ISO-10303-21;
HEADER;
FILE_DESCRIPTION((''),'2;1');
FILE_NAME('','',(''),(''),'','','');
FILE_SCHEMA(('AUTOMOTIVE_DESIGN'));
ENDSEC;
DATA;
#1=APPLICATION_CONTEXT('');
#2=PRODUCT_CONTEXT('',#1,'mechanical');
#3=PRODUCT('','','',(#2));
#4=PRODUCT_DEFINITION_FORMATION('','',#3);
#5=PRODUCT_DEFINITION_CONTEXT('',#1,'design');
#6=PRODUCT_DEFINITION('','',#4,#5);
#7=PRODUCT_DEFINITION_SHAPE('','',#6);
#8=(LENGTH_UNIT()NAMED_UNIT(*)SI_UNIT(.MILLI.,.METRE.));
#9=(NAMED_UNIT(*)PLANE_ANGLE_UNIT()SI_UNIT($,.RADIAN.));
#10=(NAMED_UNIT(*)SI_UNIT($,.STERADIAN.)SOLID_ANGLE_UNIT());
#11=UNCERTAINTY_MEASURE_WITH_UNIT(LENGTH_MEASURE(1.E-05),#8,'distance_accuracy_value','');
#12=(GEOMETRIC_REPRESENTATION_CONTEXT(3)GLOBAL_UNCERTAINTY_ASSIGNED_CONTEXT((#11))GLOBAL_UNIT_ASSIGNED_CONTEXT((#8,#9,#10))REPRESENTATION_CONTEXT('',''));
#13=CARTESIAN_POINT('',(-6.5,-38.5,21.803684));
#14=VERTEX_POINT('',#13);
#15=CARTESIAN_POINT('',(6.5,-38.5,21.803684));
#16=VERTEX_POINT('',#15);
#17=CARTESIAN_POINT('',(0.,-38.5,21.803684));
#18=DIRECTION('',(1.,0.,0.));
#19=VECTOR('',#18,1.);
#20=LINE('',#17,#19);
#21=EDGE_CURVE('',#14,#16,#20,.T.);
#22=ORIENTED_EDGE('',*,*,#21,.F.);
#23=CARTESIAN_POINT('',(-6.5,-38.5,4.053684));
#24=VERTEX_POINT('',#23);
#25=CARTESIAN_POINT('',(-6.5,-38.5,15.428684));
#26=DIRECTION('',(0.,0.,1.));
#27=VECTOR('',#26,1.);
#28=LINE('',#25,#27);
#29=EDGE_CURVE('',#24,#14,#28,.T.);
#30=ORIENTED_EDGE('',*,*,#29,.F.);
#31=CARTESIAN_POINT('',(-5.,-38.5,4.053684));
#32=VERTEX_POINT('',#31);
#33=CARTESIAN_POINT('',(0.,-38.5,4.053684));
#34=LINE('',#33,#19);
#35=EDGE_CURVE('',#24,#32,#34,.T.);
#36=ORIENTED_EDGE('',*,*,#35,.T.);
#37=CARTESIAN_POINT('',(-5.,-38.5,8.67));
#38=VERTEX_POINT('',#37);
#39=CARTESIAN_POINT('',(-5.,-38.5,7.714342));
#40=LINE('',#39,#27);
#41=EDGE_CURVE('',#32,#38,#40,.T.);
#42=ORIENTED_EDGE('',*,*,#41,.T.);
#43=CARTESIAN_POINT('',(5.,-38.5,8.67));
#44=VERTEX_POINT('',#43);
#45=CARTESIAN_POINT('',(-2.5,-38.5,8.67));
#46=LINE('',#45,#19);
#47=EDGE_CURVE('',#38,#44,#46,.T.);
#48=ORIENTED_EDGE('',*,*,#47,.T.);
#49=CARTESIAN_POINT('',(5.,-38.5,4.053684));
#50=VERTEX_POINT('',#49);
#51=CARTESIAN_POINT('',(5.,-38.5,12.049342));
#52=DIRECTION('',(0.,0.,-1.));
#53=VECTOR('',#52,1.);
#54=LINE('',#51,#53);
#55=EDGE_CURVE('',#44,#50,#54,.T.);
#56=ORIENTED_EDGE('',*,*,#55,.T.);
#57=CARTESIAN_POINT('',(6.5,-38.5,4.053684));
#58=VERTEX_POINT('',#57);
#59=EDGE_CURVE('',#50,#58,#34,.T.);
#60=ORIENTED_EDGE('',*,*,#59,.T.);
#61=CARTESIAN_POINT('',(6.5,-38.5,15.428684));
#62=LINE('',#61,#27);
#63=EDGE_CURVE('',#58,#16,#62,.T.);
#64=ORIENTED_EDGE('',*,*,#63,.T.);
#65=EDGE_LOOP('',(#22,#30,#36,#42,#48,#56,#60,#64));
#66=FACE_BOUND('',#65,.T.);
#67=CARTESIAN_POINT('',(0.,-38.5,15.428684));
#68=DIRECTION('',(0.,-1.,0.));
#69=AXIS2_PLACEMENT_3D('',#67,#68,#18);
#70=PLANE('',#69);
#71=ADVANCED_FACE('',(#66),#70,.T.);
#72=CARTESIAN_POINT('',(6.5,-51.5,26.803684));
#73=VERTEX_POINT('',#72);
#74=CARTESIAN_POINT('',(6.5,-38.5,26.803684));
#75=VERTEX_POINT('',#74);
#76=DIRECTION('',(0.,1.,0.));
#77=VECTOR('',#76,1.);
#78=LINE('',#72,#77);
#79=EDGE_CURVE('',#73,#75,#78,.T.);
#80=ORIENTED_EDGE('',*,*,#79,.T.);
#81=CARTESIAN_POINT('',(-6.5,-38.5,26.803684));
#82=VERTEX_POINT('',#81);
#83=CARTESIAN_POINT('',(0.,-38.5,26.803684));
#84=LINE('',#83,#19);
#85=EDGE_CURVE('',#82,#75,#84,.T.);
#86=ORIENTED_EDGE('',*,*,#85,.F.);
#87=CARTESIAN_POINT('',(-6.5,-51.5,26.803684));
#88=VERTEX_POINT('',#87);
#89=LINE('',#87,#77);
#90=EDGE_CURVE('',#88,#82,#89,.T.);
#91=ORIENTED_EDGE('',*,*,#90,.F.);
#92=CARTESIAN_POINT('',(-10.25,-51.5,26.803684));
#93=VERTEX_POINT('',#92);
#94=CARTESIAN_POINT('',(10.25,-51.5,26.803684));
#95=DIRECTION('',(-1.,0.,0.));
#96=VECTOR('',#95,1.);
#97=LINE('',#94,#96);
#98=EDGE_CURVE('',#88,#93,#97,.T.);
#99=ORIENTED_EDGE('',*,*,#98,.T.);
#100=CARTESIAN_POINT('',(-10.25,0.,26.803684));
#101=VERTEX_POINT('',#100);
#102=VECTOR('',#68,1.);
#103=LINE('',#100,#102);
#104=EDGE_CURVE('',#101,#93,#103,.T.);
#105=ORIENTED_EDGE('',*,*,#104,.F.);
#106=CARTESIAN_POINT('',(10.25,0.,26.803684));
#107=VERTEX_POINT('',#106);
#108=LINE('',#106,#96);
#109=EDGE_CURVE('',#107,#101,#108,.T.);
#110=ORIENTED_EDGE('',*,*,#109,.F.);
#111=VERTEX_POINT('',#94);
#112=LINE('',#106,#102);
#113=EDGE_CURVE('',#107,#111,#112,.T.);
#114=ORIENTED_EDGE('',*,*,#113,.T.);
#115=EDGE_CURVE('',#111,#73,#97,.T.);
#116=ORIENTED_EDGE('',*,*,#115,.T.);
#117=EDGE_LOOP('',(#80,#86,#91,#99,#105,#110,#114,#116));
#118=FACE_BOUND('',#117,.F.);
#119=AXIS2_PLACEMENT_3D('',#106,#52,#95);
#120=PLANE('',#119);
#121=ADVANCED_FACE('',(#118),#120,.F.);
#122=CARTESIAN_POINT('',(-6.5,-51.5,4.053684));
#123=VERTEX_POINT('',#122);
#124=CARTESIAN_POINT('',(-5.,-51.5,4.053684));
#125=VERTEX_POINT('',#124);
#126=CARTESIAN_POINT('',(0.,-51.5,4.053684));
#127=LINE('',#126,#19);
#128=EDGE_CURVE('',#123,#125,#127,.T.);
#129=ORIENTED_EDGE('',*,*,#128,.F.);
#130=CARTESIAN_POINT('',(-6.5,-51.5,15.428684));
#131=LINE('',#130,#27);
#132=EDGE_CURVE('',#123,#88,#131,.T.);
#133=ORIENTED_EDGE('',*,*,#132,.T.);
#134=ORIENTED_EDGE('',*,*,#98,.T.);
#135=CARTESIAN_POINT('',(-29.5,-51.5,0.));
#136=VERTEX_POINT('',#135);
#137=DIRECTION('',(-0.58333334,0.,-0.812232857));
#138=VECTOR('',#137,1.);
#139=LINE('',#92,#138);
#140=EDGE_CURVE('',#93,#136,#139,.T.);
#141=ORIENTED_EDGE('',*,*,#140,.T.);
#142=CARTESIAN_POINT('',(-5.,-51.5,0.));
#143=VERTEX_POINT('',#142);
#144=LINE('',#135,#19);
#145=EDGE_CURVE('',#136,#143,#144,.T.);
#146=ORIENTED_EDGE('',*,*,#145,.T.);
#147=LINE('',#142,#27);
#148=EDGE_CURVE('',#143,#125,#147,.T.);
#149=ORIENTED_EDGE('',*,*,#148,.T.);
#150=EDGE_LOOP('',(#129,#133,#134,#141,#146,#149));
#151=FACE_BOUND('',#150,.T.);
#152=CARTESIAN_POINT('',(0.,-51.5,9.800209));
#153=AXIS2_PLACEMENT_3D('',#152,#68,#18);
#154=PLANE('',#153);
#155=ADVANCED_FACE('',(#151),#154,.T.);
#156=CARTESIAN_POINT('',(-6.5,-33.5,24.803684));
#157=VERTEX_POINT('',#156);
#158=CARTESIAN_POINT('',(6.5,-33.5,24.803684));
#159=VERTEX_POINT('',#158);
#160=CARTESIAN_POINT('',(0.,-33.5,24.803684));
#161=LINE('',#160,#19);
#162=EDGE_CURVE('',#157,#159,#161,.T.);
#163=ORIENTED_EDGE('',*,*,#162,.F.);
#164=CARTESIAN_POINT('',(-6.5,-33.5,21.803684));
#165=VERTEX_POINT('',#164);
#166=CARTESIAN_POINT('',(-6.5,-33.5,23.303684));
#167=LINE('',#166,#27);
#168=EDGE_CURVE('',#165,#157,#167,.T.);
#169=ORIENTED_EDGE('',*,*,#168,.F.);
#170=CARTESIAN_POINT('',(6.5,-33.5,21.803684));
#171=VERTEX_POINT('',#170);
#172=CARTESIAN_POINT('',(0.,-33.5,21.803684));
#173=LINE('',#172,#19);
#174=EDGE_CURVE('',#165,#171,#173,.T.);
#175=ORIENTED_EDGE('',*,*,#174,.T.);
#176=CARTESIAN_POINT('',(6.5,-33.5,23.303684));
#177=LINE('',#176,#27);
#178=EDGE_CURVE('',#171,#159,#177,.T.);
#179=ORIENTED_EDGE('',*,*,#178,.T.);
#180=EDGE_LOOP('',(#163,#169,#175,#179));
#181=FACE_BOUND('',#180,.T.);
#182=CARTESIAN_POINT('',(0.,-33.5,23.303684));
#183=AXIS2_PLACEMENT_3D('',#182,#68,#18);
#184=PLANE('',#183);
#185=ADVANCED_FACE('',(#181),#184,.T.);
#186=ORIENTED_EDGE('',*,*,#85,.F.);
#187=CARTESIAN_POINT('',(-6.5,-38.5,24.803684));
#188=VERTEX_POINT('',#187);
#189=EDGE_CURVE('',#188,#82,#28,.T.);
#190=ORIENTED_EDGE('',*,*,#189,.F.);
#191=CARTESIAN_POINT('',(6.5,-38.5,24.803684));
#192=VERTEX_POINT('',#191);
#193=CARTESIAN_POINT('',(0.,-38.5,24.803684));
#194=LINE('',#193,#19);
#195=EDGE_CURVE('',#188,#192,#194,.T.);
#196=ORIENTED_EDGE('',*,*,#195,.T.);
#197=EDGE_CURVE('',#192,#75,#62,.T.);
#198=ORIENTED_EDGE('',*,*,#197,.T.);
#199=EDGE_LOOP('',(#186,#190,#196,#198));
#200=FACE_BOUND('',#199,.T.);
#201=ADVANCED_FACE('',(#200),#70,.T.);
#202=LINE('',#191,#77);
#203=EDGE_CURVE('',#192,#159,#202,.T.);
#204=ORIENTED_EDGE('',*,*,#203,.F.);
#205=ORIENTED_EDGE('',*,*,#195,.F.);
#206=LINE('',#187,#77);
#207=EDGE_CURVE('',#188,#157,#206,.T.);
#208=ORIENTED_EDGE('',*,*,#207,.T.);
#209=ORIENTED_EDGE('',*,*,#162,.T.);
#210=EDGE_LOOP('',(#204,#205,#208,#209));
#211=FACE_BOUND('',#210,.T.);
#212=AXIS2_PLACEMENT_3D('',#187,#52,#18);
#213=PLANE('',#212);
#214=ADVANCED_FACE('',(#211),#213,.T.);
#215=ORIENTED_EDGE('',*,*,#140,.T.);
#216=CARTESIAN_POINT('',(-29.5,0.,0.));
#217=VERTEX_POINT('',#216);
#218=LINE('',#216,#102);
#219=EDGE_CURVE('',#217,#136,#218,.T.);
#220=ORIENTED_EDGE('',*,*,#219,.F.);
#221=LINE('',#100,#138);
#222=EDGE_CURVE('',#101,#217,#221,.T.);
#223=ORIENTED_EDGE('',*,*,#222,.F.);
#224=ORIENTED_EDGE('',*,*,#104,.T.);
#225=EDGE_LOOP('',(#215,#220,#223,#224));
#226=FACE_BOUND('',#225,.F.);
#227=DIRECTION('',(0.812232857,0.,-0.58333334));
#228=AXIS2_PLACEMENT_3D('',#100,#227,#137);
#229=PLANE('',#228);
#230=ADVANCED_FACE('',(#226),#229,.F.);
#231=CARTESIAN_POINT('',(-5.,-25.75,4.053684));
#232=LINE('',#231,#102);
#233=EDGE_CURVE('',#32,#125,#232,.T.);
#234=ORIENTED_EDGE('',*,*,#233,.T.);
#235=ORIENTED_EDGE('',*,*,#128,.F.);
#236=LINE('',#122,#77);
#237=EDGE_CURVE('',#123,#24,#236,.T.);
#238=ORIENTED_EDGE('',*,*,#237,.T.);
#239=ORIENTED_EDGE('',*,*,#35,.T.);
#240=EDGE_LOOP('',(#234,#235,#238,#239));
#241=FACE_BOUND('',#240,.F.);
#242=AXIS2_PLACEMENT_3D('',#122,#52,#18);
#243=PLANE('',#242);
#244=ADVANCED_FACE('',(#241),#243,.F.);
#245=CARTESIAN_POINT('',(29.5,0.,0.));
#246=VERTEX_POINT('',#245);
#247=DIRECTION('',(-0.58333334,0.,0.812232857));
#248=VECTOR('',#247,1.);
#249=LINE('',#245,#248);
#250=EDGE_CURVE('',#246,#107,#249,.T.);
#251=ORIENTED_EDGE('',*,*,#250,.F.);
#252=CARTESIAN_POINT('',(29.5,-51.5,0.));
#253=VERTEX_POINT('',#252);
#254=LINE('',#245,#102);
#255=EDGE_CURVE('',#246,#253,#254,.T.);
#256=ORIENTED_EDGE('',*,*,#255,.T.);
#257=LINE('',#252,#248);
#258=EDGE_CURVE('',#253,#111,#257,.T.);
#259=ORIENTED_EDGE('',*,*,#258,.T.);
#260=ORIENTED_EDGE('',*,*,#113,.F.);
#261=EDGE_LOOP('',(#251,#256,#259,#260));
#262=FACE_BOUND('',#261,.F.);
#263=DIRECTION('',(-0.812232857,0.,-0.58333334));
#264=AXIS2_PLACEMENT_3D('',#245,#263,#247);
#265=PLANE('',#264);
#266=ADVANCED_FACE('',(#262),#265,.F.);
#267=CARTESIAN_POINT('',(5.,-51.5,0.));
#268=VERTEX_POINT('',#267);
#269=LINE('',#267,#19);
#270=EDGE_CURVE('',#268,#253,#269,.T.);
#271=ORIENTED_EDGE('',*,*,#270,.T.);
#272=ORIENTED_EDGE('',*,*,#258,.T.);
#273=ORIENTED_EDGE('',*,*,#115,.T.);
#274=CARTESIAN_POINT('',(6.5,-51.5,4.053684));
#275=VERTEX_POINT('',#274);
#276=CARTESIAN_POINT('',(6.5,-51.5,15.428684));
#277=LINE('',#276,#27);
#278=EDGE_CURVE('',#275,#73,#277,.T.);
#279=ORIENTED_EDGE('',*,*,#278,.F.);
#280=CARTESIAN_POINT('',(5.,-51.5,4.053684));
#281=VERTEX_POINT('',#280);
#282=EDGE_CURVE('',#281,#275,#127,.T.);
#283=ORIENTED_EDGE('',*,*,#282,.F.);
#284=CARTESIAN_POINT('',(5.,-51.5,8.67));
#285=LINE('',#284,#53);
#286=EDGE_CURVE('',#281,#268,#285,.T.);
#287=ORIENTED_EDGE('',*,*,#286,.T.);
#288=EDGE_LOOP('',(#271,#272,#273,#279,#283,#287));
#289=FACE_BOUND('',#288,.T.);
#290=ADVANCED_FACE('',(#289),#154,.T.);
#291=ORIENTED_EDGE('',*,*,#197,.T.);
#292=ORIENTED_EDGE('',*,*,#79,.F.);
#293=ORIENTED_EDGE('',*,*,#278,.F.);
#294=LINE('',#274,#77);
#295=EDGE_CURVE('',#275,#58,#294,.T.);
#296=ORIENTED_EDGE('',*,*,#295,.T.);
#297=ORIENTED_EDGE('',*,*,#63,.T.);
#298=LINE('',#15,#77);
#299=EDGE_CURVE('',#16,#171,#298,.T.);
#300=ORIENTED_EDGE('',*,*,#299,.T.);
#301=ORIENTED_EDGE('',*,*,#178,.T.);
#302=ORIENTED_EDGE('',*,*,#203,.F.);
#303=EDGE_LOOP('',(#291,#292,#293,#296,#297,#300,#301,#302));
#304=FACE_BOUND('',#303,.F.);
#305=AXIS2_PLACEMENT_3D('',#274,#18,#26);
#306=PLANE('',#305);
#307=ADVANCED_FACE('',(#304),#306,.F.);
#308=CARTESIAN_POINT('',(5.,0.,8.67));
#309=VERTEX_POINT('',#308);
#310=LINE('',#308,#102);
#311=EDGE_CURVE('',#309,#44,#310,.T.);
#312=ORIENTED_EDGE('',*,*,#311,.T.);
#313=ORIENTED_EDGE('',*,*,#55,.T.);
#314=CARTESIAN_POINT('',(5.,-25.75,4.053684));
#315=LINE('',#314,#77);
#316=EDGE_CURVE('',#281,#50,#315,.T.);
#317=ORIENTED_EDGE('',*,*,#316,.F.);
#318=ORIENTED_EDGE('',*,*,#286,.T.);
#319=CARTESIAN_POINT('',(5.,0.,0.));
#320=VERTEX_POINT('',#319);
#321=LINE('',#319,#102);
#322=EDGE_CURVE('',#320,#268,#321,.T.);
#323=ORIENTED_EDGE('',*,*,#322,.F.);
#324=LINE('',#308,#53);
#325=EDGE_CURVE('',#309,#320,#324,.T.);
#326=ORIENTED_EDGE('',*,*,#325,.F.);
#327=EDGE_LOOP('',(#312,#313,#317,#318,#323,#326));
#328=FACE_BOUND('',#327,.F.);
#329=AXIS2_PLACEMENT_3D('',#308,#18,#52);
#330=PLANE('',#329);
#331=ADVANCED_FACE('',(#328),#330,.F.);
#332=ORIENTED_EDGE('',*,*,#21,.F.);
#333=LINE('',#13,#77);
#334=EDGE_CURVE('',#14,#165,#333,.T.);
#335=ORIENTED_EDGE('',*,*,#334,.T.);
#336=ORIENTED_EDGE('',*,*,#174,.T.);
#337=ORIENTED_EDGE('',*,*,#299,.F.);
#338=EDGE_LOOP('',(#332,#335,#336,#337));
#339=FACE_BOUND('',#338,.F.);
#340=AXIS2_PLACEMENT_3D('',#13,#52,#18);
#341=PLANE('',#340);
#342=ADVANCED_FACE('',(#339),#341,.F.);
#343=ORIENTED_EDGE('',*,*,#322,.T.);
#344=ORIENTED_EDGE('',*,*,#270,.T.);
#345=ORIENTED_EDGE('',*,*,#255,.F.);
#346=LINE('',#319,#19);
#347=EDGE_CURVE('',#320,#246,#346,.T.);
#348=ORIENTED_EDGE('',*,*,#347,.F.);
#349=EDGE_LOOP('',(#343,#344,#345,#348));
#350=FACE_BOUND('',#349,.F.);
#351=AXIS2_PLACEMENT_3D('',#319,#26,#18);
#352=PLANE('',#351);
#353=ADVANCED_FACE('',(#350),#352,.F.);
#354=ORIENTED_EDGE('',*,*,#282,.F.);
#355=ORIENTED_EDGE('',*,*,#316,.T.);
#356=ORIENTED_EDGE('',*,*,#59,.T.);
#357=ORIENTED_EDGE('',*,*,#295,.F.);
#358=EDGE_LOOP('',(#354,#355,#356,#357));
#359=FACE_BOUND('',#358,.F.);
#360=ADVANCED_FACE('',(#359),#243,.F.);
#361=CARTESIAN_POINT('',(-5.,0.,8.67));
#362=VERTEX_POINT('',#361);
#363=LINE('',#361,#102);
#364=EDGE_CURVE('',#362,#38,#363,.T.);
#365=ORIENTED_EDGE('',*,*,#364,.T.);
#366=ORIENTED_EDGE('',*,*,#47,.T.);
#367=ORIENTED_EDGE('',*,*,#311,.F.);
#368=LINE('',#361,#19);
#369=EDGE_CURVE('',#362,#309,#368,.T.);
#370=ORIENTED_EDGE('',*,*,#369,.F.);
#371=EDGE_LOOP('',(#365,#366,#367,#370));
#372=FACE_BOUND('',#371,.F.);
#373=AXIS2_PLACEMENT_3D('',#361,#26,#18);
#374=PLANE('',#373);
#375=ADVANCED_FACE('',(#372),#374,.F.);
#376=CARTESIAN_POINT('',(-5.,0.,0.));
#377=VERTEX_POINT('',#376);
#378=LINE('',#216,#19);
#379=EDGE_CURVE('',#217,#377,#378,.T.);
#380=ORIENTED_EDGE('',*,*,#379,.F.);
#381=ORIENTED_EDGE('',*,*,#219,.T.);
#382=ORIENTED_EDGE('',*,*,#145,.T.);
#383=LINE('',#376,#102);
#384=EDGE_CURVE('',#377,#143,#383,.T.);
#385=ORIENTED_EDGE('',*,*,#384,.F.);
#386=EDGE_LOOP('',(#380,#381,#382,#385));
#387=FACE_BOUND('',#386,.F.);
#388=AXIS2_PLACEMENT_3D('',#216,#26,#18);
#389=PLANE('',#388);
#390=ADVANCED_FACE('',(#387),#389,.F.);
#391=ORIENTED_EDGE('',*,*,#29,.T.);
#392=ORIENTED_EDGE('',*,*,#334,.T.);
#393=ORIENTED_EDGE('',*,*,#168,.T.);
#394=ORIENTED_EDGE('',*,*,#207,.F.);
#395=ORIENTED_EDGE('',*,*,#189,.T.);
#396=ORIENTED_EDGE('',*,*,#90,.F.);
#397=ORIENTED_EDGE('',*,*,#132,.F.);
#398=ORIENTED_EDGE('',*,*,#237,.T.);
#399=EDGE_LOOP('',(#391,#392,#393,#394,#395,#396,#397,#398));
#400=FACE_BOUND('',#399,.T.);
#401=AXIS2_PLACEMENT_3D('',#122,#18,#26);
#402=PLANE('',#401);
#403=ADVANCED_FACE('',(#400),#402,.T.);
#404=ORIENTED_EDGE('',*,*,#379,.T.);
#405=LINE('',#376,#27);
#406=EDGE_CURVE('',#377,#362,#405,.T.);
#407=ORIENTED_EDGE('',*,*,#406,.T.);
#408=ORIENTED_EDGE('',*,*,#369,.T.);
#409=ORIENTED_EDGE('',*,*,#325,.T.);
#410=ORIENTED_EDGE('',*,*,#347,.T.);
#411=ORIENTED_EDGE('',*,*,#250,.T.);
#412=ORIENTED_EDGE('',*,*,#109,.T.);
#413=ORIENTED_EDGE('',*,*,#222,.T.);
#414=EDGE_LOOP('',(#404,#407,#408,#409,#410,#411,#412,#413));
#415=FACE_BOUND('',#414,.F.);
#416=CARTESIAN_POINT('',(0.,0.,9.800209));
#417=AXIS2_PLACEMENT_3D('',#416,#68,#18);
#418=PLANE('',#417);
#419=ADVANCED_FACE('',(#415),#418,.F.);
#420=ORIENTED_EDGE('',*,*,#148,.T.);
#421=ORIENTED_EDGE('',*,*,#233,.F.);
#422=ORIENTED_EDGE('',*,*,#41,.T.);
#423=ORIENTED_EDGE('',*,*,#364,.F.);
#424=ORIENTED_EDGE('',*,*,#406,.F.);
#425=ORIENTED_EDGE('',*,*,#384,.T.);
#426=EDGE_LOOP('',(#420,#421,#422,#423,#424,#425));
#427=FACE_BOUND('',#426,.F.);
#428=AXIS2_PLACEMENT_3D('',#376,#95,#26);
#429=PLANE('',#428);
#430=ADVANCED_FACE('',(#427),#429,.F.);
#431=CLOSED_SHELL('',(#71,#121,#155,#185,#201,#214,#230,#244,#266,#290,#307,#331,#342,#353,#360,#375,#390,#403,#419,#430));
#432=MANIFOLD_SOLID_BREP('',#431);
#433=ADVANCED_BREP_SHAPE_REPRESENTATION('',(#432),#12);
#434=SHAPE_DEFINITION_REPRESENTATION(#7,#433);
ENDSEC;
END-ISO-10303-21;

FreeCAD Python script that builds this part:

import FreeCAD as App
import Part
import Sketcher
from FreeCAD import Vector
Q = App.Units.Quantity

doc = App.newDocument("Part")
body = doc.addObject("PartDesign::Body", "Body")

sketch1 = doc.addObject("Sketcher::SketchObject", "Sketch")
body.addObject(sketch1)
sketch1.AttachmentSupport = (doc.XZ_Plane, [""])
sketch1.MapMode = "FlatFace"
sketch1.addGeometry([
    Part.LineSegment(Vector(-10, 27, 0), Vector(-30, 0, 0)),
    Part.LineSegment(Vector(-30, 0, 0), Vector(-5, 0, 0)),
    Part.LineSegment(Vector(-5, 0, 0), Vector(-5, 9, 0)),
    Part.LineSegment(Vector(-5, 9, 0), Vector(5, 9, 0)),
    Part.LineSegment(Vector(5, 9, 0), Vector(5, 0, 0)),
    Part.LineSegment(Vector(5, 0, 0), Vector(30, 0, 0)),
    Part.LineSegment(Vector(30, 0, 0), Vector(10, 27, 0)),
    Part.LineSegment(Vector(10, 27, 0), Vector(-10, 27, 0)),
], False)
sketch1.addConstraint([
    Sketcher.Constraint("Coincident", 0, 2, 1, 1),
    Sketcher.Constraint("Coincident", 1, 2, 2, 1),
    Sketcher.Constraint("Coincident", 2, 2, 3, 1),
    Sketcher.Constraint("Coincident", 3, 2, 4, 1),
    Sketcher.Constraint("Coincident", 4, 2, 5, 1),
    Sketcher.Constraint("Coincident", 5, 2, 6, 1),
    Sketcher.Constraint("Coincident", 6, 2, 7, 1),
    Sketcher.Constraint("Coincident", 7, 2, 0, 1),
    Sketcher.Constraint("Horizontal", 1),
    Sketcher.Constraint("Vertical", 2),
    Sketcher.Constraint("Horizontal", 3),
    Sketcher.Constraint("Vertical", 4),
    Sketcher.Constraint("Horizontal", 5),
    Sketcher.Constraint("Horizontal", 7),
    Sketcher.Constraint("Symmetric", 1, 2, 4, 2, -1, 1),
    Sketcher.Constraint("Symmetric", 0, 2, 5, 2, -2),
    Sketcher.Constraint("Equal", 0, 6),
    Sketcher.Constraint("DistanceX", 3, 1, 3, 2, Q("10 mm")),
    Sketcher.Constraint("Distance", 0, Q("33 mm")),
    Sketcher.Constraint("DistanceX", 1, 1, 1, 2, Q("24.5 mm")),
    Sketcher.Constraint("DistanceX", 7, 2, 7, 1, Q("20.5 mm")),
    Sketcher.Constraint("DistanceY", 2, 1, 2, 2, Q("8.67 mm")),
])
pad1 = doc.addObject("PartDesign::Pad", "Pad")
body.addObject(pad1)
pad1.Profile = sketch1
pad1.Length = 51.5

sketch2 = doc.addObject("Sketcher::SketchObject", "Sketch001")
body.addObject(sketch2)
sketch2.AttachmentSupport = (doc.XZ_Plane, [""])
sketch2.MapMode = "FlatFace"
sketch2.AttachmentOffset = App.Placement(Vector(0, 0, 51.5), App.Rotation())
sketch2.addGeometry([
    Part.LineSegment(Vector(-6, 27, 0), Vector(-6, 4, 0)),
    Part.LineSegment(Vector(-6, 4, 0), Vector(6, 4, 0)),
    Part.LineSegment(Vector(6, 4, 0), Vector(6, 27, 0)),
    Part.LineSegment(Vector(6, 27, 0), Vector(-6, 27, 0)),
], False)
sketch2.addConstraint([
    Sketcher.Constraint("Coincident", 0, 2, 1, 1),
    Sketcher.Constraint("Coincident", 1, 2, 2, 1),
    Sketcher.Constraint("Coincident", 2, 2, 3, 1),
    Sketcher.Constraint("Coincident", 3, 2, 0, 1),
    Sketcher.Constraint("Vertical", 0),
    Sketcher.Constraint("Horizontal", 1),
    Sketcher.Constraint("Vertical", 2),
    Sketcher.Constraint("Horizontal", 3),
    Sketcher.Constraint("DistanceX", 1, 1, 1, 2, Q("13 mm")),
    Sketcher.Constraint("DistanceY", 0, 2, 0, 1, Q("22.75 mm")),
    Sketcher.Constraint("DistanceX", 0, 2, -1, 1, Q("6.5 mm")),
    Sketcher.Constraint("DistanceY", -1, 1, 0, 2, Q("4.053684 mm")),
])
pocket1 = doc.addObject("PartDesign::Pocket", "Pocket")
body.addObject(pocket1)
pocket1.Profile = sketch2
pocket1.Length = 13

sketch3 = doc.addObject("Sketcher::SketchObject", "Sketch002")
body.addObject(sketch3)
sketch3.AttachmentSupport = (doc.XZ_Plane, [""])
sketch3.MapMode = "FlatFace"
sketch3.AttachmentOffset = App.Placement(Vector(0, 0, 38.5), App.Rotation())
sketch3.addGeometry([
    Part.LineSegment(Vector(-6.5, 24.8, 0), Vector(-6.5, 21.8, 0)),
    Part.LineSegment(Vector(-6.5, 21.8, 0), Vector(6.5, 21.8, 0)),
    Part.LineSegment(Vector(6.5, 21.8, 0), Vector(6.5, 24.8, 0)),
    Part.LineSegment(Vector(6.5, 24.8, 0), Vector(-6.5, 24.8, 0)),
], False)
sketch3.addConstraint([
    Sketcher.Constraint("Coincident", 0, 2, 1, 1),
    Sketcher.Constraint("Coincident", 1, 2, 2, 1),
    Sketcher.Constraint("Coincident", 2, 2, 3, 1),
    Sketcher.Constraint("Coincident", 3, 2, 0, 1),
    Sketcher.Constraint("Vertical", 0),
    Sketcher.Constraint("Horizontal", 1),
    Sketcher.Constraint("Vertical", 2),
    Sketcher.Constraint("Horizontal", 3),
    Sketcher.Constraint("DistanceX", 1, 1, 1, 2, Q("13 mm")),
    Sketcher.Constraint("DistanceY", 0, 2, 0, 1, Q("3 mm")),
    Sketcher.Constraint("DistanceX", 0, 2, -1, 1, Q("6.5 mm")),
    Sketcher.Constraint("DistanceY", -1, 1, 0, 2, Q("21.803684 mm")),
])
pocket2 = doc.addObject("PartDesign::Pocket", "Pocket001")
body.addObject(pocket2)
pocket2.Profile = sketch3
pocket2.Length = 5

doc.recompute()
